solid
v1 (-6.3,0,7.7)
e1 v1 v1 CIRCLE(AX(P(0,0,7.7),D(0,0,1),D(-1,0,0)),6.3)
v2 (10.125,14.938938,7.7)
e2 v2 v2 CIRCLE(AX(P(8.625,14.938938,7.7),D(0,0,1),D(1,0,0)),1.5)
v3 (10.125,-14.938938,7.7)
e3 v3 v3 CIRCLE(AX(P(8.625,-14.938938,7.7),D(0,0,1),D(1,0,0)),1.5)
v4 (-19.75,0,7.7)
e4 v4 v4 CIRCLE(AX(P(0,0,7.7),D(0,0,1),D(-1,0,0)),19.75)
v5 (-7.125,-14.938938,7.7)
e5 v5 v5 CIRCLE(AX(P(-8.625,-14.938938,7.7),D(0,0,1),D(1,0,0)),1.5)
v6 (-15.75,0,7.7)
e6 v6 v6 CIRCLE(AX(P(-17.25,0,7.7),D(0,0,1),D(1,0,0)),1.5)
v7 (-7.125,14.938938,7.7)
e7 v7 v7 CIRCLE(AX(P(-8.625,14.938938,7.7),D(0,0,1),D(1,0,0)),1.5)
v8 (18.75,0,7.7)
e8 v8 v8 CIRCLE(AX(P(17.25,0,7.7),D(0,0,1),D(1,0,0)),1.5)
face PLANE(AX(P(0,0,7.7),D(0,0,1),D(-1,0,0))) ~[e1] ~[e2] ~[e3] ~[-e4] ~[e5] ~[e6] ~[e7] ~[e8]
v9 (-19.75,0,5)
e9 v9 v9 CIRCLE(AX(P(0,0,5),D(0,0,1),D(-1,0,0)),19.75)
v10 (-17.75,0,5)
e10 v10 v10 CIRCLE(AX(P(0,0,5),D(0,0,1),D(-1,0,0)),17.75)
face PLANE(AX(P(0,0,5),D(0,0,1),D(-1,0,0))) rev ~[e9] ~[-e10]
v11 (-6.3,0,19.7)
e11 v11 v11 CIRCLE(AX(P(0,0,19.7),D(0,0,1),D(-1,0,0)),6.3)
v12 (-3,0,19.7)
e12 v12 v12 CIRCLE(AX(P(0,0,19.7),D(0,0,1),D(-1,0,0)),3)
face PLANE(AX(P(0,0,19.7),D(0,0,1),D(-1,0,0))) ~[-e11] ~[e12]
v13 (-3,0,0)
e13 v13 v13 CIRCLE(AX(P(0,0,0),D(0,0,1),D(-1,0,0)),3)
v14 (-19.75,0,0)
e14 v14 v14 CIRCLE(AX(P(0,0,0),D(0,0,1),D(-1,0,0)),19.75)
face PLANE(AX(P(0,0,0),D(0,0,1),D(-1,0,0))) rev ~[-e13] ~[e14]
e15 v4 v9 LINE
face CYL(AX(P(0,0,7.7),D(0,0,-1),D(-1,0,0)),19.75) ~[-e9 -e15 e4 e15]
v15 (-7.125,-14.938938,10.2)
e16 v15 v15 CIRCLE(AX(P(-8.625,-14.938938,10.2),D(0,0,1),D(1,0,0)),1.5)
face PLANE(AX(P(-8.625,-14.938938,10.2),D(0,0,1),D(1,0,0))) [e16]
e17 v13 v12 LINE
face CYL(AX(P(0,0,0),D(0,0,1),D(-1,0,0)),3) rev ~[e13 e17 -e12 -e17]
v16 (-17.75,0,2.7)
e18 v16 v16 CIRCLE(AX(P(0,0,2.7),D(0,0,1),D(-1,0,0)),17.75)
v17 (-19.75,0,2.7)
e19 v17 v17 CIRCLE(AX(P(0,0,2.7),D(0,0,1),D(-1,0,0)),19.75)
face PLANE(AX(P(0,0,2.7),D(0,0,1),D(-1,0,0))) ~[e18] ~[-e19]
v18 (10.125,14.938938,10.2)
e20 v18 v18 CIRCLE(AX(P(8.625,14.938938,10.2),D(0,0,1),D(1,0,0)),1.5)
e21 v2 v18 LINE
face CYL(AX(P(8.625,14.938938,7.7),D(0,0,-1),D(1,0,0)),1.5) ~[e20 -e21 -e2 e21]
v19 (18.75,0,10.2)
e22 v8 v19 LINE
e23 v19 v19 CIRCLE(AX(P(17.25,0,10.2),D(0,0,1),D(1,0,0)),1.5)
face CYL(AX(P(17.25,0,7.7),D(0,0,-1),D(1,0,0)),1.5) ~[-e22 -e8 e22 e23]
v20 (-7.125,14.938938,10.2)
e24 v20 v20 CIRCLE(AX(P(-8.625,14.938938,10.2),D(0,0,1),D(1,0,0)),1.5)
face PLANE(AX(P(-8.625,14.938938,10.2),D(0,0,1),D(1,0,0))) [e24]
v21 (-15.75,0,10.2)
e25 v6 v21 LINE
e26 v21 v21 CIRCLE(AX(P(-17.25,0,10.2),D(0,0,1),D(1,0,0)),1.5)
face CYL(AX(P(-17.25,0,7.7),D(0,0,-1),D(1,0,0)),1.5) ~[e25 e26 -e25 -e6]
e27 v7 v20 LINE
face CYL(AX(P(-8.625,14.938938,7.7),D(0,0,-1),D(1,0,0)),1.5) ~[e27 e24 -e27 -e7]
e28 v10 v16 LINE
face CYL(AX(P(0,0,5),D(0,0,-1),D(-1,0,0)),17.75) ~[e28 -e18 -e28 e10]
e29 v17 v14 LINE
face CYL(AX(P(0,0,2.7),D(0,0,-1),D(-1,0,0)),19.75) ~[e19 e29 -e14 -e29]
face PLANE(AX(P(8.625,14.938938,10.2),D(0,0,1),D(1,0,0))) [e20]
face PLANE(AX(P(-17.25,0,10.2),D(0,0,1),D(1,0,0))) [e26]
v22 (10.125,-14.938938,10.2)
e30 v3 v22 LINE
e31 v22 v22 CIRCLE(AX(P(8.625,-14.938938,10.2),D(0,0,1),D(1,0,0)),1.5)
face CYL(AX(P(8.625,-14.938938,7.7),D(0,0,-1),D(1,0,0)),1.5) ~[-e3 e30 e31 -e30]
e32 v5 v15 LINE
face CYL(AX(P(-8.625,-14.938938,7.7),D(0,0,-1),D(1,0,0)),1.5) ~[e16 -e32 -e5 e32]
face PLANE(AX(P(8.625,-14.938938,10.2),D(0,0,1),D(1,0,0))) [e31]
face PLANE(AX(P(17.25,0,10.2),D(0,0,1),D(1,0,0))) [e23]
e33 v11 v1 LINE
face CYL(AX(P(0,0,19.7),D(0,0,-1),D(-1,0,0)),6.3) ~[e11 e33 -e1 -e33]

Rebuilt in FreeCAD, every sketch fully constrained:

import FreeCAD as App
import Part
import Sketcher

V = App.Vector
Q = App.Units.Quantity

doc = App.newDocument("Part")
body = doc.addObject("PartDesign::Body", "Body")

# Sketch on XZ plane
sketch1 = body.newObject("Sketcher::SketchObject", "Sketch")
sketch1.AttachmentSupport = (doc.getObject("XZ_Plane"), [""])
sketch1.MapMode = "FlatFace"
sketch1.addGeometry(Part.LineSegment(V(-19.8, 2.7, 0), V(-19.8, 0, 0)), False)
sketch1.addGeometry(Part.LineSegment(V(-19.8, 0, 0), V(-3, 0, 0)), False)
sketch1.addGeometry(Part.LineSegment(V(-3, 0, 0), V(-3, 19.7, 0)), False)
sketch1.addGeometry(Part.LineSegment(V(-3, 19.7, 0), V(-6.3, 19.7, 0)), False)
sketch1.addGeometry(Part.LineSegment(V(-6.3, 19.7, 0), V(-6.3, 7.7, 0)), False)
sketch1.addGeometry(Part.LineSegment(V(-6.3, 7.7, 0), V(-19.8, 7.7, 0)), False)
sketch1.addGeometry(Part.LineSegment(V(-19.8, 7.7, 0), V(-19.8, 5, 0)), False)
sketch1.addGeometry(Part.LineSegment(V(-19.8, 5, 0), V(-17.8, 5, 0)), False)
sketch1.addGeometry(Part.LineSegment(V(-17.8, 5, 0), V(-17.8, 2.7, 0)), False)
sketch1.addGeometry(Part.LineSegment(V(-17.8, 2.7, 0), V(-19.8, 2.7, 0)), False)
sketch1.addConstraint(Sketcher.Constraint("Coincident", 0, 2, 1, 1))
sketch1.addConstraint(Sketcher.Constraint("Coincident", 1, 2, 2, 1))
sketch1.addConstraint(Sketcher.Constraint("Coincident", 2, 2, 3, 1))
sketch1.addConstraint(Sketcher.Constraint("Coincident", 3, 2, 4, 1))
sketch1.addConstraint(Sketcher.Constraint("Coincident", 4, 2, 5, 1))
sketch1.addConstraint(Sketcher.Constraint("Coincident", 5, 2, 6, 1))
sketch1.addConstraint(Sketcher.Constraint("Coincident", 6, 2, 7, 1))
sketch1.addConstraint(Sketcher.Constraint("Coincident", 7, 2, 8, 1))
sketch1.addConstraint(Sketcher.Constraint("Coincident", 8, 2, 9, 1))
sketch1.addConstraint(Sketcher.Constraint("Coincident", 9, 2, 0, 1))
sketch1.addConstraint(Sketcher.Constraint("Vertical", 0))
sketch1.addConstraint(Sketcher.Constraint("Horizontal", 1))
sketch1.addConstraint(Sketcher.Constraint("Vertical", 2))
sketch1.addConstraint(Sketcher.Constraint("Horizontal", 3))
sketch1.addConstraint(Sketcher.Constraint("Vertical", 4))
sketch1.addConstraint(Sketcher.Constraint("Horizontal", 5))
sketch1.addConstraint(Sketcher.Constraint("Vertical", 6))
sketch1.addConstraint(Sketcher.Constraint("Horizontal", 7))
sketch1.addConstraint(Sketcher.Constraint("Vertical", 8))
sketch1.addConstraint(Sketcher.Constraint("Horizontal", 9))
sketch1.addConstraint(Sketcher.Constraint("PointOnObject", 0, 2, -1))
sketch1.addConstraint(Sketcher.Constraint("Vertical", 0, 2, 5, 2))
sketch1.addConstraint(Sketcher.Constraint("Equal", 0, 6))
sketch1.addConstraint(Sketcher.Constraint("DistanceX", 7, 1, 7, 2, Q("2 mm")))
sketch1.addConstraint(Sketcher.Constraint("DistanceY", 4, 2, 4, 1, Q("12 mm")))
sketch1.addConstraint(Sketcher.Constraint("DistanceX", 3, 2, 3, 1, Q("3.3 mm")))
sketch1.addConstraint(Sketcher.Constraint("DistanceY", 0, 2, 0, 1, Q("2.7 mm")))
sketch1.addConstraint(Sketcher.Constraint("DistanceY", 2, 1, 2, 2, Q("19.7 mm")))
sketch1.addConstraint(Sketcher.Constraint("DistanceX", 1, 2, -1, 1, Q("3 mm")))
sketch1.addConstraint(Sketcher.Constraint("DistanceX", 1, 1, 1, 2, Q("16.75 mm")))
revolution = body.newObject("PartDesign::Revolution", "Revolution")
revolution.Profile = sketch1
revolution.ReferenceAxis = (sketch1, ["V_Axis"])
revolution.Angle = 360

# Sketch on XY plane
sketch2 = body.newObject("Sketcher::SketchObject", "Sketch001")
sketch2.AttachmentSupport = (doc.getObject("XY_Plane"), [""])
sketch2.MapMode = "FlatFace"
sketch2.AttachmentOffset = App.Placement(V(0, 0, 7.7), App.Rotation())
sketch2.addGeometry(Part.Circle(V(-8.6, 14.9, 0), V(0, 0, 1), 1.5), False)
sketch2.addGeometry(Part.Circle(V(8.6, 14.9, 0), V(0, 0, 1), 1.5), False)
sketch2.addGeometry(Part.Circle(V(17.2, 0, 0), V(0, 0, 1), 1.5), False)
sketch2.addGeometry(Part.Circle(V(8.6, -14.9, 0), V(0, 0, 1), 1.5), False)
sketch2.addGeometry(Part.Circle(V(-8.6, -14.9, 0), V(0, 0, 1), 1.5), False)
sketch2.addGeometry(Part.Circle(V(-17.2, 0, 0), V(0, 0, 1), 1.5), False)
sketch2.addConstraint(Sketcher.Constraint("Equal", 0, 1))
sketch2.addConstraint(Sketcher.Constraint("Equal", 1, 2))
sketch2.addConstraint(Sketcher.Constraint("Equal", 2, 3))
sketch2.addConstraint(Sketcher.Constraint("Equal", 3, 4))
sketch2.addConstraint(Sketcher.Constraint("Equal", 4, 5))
sketch2.addConstraint(Sketcher.Constraint("Symmetric", 0, 3, 3, 3, -1, 1))
sketch2.addConstraint(Sketcher.Constraint("Symmetric", 1, 3, 4, 3, -1, 1))
sketch2.addConstraint(Sketcher.Constraint("Symmetric", 2, 3, 5, 3, -1, 1))
sketch2.addConstraint(Sketcher.Constraint("Symmetric", 0, 3, 1, 3, -2))
sketch2.addConstraint(Sketcher.Constraint("PointOnObject", 2, 3, -1))
sketch2.addConstraint(Sketcher.Constraint("Diameter", 0, Q("3 mm")))
sketch2.addConstraint(Sketcher.Constraint("DistanceX", 5, 3, 2, 3, Q("34.5 mm")))
sketch2.addConstraint(Sketcher.Constraint("DistanceX", 0, 3, 1, 3, Q("17.25 mm")))
sketch2.addConstraint(Sketcher.Constraint("DistanceY", -1, 1, 0, 3, Q("14.938938 mm")))
pad1 = body.newObject("PartDesign::Pad", "Pad")
pad1.Profile = sketch2
pad1.Length = 2.5

doc.recompute()
